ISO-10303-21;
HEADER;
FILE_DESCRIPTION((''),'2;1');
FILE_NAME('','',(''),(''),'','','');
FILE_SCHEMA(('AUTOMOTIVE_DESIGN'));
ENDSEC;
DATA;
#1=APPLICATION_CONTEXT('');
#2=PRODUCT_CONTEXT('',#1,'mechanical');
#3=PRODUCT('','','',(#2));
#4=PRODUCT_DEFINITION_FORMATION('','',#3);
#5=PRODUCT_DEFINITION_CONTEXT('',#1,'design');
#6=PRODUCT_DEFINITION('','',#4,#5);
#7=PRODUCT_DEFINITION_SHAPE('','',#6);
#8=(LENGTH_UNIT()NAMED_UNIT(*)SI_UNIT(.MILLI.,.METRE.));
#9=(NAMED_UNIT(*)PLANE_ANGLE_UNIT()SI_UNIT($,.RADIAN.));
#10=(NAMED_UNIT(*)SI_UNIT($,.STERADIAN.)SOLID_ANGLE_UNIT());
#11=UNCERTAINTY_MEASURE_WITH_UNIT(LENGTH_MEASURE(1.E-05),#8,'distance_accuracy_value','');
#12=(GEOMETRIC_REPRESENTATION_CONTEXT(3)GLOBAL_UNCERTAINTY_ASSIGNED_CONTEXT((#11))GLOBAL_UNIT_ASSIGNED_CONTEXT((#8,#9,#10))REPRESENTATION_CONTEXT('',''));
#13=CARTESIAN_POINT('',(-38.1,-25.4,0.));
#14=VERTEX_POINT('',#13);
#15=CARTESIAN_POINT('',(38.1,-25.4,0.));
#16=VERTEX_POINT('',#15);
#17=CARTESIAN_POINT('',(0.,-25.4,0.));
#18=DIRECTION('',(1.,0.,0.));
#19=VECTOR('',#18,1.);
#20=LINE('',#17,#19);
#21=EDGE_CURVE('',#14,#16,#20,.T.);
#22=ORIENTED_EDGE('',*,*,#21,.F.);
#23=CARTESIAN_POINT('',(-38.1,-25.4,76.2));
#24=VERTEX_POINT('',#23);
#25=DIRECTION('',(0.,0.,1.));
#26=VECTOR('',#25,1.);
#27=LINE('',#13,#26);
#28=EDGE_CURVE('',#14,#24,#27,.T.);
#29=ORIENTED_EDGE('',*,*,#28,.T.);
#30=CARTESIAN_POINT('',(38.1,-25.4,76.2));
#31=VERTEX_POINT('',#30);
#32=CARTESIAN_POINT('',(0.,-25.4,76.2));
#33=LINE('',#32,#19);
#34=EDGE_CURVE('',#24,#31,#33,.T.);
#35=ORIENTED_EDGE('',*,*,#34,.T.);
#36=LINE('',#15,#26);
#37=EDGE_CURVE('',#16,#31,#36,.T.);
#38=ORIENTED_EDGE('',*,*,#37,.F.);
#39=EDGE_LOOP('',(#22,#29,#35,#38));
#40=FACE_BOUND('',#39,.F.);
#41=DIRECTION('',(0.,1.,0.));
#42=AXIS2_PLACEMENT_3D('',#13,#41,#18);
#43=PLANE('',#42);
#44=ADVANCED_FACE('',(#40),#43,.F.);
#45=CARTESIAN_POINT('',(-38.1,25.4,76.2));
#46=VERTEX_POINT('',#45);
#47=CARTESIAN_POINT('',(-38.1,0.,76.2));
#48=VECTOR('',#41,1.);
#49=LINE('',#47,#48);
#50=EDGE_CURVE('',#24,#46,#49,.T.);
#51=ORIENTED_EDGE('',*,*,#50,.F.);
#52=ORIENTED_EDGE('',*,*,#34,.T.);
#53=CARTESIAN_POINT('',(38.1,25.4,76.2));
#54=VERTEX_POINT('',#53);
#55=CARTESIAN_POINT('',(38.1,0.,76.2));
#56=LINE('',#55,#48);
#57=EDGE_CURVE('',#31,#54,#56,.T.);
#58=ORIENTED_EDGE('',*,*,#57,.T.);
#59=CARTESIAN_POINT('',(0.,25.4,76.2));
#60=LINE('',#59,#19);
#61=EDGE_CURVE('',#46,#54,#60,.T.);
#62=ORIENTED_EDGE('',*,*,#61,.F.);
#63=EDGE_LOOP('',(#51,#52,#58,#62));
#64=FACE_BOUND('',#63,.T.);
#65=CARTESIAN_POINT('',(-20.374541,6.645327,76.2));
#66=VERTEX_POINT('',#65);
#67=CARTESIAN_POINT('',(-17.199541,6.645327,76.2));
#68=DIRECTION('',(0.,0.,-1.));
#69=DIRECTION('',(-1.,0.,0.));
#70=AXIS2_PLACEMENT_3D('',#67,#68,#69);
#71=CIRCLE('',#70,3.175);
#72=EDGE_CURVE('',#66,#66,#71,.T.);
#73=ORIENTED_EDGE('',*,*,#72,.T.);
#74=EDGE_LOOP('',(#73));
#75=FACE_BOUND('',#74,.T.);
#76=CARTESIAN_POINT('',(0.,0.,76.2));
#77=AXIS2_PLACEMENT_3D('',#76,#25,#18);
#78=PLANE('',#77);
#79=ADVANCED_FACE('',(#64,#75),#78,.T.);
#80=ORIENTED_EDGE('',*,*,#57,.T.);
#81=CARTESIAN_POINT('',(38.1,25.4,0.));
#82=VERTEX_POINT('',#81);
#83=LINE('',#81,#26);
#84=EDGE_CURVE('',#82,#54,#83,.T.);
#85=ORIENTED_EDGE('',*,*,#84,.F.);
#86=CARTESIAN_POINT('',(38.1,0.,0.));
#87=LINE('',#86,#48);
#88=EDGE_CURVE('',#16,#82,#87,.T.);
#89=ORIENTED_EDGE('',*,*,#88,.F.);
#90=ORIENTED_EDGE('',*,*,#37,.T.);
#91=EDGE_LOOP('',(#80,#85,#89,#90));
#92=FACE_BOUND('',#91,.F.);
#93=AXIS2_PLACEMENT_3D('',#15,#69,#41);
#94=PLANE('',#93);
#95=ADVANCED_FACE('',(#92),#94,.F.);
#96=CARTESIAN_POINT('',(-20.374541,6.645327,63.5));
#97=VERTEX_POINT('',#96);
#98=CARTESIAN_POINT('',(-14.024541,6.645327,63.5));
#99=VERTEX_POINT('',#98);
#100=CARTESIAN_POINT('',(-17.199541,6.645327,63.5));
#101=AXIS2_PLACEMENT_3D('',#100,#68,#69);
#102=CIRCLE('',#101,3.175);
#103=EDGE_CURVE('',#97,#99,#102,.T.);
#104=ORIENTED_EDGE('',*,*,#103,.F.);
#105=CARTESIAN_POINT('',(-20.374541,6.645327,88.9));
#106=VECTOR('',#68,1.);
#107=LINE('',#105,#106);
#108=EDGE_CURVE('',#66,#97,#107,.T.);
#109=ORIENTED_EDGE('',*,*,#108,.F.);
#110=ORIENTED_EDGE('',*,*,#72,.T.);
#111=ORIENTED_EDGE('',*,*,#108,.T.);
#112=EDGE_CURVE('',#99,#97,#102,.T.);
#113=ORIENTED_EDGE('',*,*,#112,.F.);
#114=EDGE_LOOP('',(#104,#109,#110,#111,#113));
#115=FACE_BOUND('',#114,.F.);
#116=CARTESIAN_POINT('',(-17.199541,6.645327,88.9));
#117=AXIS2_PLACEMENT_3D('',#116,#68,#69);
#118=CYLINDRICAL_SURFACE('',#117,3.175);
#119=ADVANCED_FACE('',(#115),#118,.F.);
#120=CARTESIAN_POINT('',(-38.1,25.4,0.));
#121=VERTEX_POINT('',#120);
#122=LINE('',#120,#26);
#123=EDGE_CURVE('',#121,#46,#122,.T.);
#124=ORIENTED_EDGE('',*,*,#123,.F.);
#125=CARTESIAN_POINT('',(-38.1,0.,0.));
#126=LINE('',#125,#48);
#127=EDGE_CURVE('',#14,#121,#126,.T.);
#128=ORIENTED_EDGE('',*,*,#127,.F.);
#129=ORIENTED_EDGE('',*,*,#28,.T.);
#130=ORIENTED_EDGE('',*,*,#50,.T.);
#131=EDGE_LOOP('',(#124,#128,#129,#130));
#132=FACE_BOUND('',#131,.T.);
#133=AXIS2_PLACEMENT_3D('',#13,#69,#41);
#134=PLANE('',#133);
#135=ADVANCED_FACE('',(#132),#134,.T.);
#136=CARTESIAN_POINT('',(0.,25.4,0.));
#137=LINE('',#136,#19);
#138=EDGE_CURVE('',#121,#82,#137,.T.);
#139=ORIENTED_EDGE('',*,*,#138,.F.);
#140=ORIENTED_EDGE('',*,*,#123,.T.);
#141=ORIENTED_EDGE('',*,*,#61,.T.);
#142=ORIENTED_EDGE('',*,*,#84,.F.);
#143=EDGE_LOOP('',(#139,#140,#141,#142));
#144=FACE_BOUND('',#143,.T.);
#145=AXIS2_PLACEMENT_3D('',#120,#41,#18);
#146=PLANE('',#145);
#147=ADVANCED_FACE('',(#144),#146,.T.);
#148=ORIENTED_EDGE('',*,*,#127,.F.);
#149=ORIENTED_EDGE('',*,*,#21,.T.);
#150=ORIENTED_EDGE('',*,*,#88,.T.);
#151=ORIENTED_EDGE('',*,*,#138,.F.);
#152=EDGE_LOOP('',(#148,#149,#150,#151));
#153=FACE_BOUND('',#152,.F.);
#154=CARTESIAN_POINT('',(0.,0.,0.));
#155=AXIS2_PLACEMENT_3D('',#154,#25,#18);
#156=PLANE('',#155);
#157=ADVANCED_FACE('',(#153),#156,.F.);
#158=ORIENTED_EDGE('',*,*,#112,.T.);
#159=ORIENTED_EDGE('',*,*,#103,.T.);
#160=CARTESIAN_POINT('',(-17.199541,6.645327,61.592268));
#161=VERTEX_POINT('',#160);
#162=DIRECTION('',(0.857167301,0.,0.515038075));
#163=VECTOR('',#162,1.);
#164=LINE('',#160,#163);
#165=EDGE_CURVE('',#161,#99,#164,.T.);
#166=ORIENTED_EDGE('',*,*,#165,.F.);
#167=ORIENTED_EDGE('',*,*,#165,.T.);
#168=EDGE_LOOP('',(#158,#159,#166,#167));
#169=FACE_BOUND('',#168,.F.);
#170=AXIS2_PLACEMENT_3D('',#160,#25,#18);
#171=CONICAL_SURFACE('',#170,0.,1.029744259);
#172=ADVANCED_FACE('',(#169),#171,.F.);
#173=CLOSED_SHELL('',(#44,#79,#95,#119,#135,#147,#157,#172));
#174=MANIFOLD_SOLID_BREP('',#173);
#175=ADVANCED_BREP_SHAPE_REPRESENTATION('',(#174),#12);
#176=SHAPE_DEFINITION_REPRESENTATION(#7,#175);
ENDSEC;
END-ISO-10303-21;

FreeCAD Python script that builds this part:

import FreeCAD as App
import Part
import Sketcher

V = App.Vector
Q = App.Units.Quantity

doc = App.newDocument("Part")
body = doc.addObject("PartDesign::Body", "Body")

sketch1 = body.newObject("Sketcher::SketchObject", "Sketch")
sketch1.AttachmentSupport = (doc.getObject("XY_Plane"), [""])
sketch1.MapMode = "FlatFace"
sketch1.addGeometry([
    Part.LineSegment(V(-38, 25, 0), V(-38, -25, 0)),
    Part.LineSegment(V(-38, -25, 0), V(38, -25, 0)),
    Part.LineSegment(V(38, -25, 0), V(38, 25, 0)),
    Part.LineSegment(V(38, 25, 0), V(-38, 25, 0)),
], False)
sketch1.addConstraint([
    Sketcher.Constraint("Coincident", 0, 2, 1, 1),
    Sketcher.Constraint("Coincident", 1, 2, 2, 1),
    Sketcher.Constraint("Coincident", 2, 2, 3, 1),
    Sketcher.Constraint("Coincident", 3, 2, 0, 1),
    Sketcher.Constraint("Vertical", 0),
    Sketcher.Constraint("Horizontal", 1),
    Sketcher.Constraint("Vertical", 2),
    Sketcher.Constraint("Horizontal", 3),
    Sketcher.Constraint("Symmetric", 0, 2, 2, 2, -1, 1),
    Sketcher.Constraint("DistanceX", 1, 1, 1, 2, Q("3 in")),
    Sketcher.Constraint("DistanceY", 0, 2, 0, 1, Q("2 in")),
])
pad1 = body.newObject("PartDesign::Pad", "Pad")
pad1.Profile = sketch1
pad1.Length = Q("3 in")

sketch2 = body.newObject("Sketcher::SketchObject", "Sketch001")
sketch2.AttachmentSupport = (doc.getObject("XY_Plane"), [""])
sketch2.MapMode = "FlatFace"
sketch2.AttachmentOffset = App.Placement(V(0, 0, 3 * 25.4), App.Rotation())
sketch2.addGeometry(Part.Circle(V(-17.2, 6.6, 0), V(0, 0, 1), 3.2), False)
sketch2.addConstraint([
    Sketcher.Constraint("Diameter", 0, Q("0.25 in")),
    Sketcher.Constraint("DistanceX", 0, 3, -1, 1, 17.199541),
    Sketcher.Constraint("DistanceY", -1, 1, 0, 3, 6.645327),
])
doc.recompute()
hole = body.newObject("PartDesign::Hole", "Hole")
hole.Profile = sketch2
hole.ThreadType = "None"
hole.Diameter = Q("0.25 in")
hole.DepthType = "Dimension"
hole.Depth = Q("0.5 in")
hole.DrillPoint = "Angled"
hole.DrillPointAngle = 118

doc.recompute()
